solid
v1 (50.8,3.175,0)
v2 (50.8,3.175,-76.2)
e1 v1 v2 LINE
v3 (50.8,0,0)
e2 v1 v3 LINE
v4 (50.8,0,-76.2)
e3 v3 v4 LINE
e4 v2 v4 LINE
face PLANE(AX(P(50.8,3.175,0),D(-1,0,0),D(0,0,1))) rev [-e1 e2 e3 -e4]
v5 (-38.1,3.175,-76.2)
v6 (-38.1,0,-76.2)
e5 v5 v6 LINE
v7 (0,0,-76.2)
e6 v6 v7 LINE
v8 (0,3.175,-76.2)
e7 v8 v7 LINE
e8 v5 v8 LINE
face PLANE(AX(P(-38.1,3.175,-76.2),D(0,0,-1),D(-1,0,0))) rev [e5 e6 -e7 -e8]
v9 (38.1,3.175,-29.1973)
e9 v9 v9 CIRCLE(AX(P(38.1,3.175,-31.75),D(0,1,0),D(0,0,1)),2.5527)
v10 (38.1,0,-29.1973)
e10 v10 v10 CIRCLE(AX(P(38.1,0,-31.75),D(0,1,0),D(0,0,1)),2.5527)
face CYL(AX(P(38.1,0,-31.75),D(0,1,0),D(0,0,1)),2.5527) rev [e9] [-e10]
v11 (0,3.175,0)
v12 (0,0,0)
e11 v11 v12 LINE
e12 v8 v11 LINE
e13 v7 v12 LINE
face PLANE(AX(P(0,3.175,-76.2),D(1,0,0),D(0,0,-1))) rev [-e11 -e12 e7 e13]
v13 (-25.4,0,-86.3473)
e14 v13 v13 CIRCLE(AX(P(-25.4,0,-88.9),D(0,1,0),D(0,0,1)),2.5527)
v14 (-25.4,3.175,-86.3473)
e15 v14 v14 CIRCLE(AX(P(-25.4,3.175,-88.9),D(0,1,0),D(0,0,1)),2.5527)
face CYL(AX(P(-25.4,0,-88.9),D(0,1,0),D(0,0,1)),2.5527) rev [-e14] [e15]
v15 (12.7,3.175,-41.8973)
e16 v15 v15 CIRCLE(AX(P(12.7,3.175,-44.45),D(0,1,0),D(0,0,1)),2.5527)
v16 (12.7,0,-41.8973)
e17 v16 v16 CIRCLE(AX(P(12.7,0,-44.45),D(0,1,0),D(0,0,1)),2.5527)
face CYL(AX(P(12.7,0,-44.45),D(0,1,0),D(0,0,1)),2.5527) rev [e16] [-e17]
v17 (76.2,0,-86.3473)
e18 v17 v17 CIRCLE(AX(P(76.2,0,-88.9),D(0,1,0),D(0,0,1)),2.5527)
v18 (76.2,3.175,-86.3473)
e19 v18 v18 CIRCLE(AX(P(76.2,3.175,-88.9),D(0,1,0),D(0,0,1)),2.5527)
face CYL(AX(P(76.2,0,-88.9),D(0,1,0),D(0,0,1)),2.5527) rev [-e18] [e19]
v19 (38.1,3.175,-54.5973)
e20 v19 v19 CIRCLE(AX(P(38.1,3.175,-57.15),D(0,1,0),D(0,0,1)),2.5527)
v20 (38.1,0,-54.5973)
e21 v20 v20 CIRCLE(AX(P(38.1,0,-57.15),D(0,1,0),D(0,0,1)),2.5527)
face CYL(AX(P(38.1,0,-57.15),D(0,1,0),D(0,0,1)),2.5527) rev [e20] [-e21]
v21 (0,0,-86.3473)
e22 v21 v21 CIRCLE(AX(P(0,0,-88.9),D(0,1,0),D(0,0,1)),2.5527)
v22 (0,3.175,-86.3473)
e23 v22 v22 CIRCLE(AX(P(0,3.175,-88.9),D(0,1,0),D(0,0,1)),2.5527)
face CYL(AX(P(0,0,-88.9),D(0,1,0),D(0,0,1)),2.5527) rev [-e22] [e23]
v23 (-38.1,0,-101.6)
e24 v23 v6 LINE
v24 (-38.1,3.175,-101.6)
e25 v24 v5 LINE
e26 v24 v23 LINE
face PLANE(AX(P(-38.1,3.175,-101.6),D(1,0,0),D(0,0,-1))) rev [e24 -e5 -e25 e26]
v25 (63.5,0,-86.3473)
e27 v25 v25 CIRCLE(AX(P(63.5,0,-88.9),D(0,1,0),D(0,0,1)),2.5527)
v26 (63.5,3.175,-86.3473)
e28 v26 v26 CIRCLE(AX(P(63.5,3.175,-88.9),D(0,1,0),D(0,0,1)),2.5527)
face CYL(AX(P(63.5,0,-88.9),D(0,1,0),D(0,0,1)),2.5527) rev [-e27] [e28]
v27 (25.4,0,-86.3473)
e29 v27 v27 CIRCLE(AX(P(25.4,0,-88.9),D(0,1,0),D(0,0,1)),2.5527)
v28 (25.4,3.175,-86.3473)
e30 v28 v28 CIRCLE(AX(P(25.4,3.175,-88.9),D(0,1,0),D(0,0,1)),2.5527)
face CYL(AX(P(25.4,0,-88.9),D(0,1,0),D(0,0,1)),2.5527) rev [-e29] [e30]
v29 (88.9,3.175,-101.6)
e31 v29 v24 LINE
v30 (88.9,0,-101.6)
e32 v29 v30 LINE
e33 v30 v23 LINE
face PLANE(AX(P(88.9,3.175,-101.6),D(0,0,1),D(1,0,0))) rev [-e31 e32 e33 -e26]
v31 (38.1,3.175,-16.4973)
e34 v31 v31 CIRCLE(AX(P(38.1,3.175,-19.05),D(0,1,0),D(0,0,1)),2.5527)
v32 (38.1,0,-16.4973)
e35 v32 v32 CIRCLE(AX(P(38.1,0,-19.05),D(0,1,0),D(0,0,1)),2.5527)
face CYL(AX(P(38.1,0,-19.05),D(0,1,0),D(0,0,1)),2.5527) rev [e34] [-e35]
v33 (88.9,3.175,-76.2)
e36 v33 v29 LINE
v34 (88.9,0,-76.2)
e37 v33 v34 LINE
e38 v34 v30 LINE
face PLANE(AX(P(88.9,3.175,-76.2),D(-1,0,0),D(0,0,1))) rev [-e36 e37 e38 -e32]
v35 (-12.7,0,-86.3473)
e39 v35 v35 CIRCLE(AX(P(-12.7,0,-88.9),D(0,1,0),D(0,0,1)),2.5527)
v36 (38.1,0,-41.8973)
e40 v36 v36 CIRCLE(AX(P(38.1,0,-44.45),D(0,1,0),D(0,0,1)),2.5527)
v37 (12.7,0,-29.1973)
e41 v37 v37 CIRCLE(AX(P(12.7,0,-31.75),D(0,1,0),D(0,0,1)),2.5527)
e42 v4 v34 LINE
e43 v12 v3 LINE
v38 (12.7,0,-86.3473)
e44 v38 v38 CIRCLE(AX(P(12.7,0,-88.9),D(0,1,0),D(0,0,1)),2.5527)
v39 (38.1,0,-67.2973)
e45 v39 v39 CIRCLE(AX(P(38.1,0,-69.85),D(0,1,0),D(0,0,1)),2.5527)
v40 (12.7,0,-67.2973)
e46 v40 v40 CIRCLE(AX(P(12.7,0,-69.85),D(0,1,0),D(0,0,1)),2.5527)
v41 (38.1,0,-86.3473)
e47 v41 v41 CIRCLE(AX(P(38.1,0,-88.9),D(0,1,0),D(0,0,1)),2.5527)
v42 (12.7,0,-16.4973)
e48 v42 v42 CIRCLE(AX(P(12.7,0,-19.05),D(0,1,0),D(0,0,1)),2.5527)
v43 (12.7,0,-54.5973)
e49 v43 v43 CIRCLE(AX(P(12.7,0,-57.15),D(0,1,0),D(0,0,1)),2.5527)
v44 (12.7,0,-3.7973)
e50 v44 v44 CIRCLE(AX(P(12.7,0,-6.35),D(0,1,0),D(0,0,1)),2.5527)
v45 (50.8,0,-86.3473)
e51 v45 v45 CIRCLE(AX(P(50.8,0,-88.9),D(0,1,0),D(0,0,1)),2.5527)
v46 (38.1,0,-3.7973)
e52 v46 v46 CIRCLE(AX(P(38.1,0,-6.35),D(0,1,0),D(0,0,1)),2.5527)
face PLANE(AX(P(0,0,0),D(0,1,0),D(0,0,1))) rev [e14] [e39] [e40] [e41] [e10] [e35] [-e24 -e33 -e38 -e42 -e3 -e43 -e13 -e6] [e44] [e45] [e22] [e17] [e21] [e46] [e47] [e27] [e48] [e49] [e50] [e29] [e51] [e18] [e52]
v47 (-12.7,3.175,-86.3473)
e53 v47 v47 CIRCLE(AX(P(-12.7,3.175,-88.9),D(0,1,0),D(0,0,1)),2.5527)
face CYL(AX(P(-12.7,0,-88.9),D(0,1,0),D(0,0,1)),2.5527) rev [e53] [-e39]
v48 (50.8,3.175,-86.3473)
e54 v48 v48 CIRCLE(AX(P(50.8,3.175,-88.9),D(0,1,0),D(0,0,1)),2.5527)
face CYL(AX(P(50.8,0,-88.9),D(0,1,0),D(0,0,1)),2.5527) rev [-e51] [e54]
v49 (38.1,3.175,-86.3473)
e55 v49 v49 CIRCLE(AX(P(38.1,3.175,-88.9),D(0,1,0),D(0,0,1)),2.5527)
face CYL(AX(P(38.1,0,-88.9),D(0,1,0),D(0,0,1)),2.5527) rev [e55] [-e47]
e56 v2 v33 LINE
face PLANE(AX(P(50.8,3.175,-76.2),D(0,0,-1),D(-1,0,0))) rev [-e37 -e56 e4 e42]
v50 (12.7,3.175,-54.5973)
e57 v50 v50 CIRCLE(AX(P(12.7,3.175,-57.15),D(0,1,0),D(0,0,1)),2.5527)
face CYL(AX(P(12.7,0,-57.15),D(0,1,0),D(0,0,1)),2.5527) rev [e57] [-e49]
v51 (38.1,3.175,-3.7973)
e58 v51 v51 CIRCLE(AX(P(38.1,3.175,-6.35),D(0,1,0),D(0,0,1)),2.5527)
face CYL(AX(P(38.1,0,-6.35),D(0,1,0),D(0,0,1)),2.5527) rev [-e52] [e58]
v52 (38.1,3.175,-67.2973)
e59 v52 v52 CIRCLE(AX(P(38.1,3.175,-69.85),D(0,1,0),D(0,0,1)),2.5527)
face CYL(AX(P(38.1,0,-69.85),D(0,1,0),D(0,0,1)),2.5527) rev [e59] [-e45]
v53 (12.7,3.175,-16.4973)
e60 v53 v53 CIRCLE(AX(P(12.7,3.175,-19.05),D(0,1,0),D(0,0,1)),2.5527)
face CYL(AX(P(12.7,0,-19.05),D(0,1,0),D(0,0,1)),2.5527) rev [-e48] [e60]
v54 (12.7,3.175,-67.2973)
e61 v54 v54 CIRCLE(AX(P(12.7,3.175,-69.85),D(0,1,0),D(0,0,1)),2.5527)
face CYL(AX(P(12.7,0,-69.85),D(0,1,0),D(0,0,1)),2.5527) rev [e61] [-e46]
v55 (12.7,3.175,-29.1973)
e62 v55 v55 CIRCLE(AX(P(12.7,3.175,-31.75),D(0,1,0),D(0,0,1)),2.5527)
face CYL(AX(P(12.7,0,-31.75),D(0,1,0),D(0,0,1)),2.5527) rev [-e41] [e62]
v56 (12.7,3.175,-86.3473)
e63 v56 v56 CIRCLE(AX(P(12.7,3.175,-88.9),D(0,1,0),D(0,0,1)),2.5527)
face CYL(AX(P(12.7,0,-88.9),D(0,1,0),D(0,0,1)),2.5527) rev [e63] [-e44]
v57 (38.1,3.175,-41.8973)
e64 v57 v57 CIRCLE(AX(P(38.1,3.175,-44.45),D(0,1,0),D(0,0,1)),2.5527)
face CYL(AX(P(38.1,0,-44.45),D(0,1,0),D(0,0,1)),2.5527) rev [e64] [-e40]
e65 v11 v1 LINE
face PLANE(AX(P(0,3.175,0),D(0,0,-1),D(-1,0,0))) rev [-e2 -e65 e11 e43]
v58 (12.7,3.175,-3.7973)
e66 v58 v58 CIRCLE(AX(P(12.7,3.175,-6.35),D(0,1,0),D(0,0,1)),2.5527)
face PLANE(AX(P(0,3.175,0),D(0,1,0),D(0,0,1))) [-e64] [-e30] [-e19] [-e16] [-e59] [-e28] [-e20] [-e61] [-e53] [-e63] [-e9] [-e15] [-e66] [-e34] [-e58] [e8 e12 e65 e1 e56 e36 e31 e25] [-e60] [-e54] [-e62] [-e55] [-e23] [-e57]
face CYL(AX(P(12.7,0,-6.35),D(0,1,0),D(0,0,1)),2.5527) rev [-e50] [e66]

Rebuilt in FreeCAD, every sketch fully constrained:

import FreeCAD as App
import Part
import Sketcher

V = App.Vector
Q = App.Units.Quantity


def add_polygon(sketch, points):
    """Adds a closed chain of lines whose ends are joined by coincident constraints."""
    first, n = sketch.GeometryCount, len(points)
    for a, b in zip(points, points[1:] + points[:1]):
        sketch.addGeometry(Part.LineSegment(App.Vector(*a, 0), App.Vector(*b, 0)), False)
    for i in range(n):
        sketch.addConstraint(Sketcher.Constraint("Coincident", first + i, 2, first + (i + 1) % n, 1))

doc = App.newDocument("Part")
body = doc.addObject("PartDesign::Body", "Body")

# Sketch on XZ plane
sketch1 = doc.addObject("Sketcher::SketchObject", "Sketch")
body.addObject(sketch1)
sketch1.AttachmentSupport = (doc.XZ_Plane, [""])
sketch1.MapMode = "FlatFace"
add_polygon(sketch1, [(0, 0), (50.8, 0), (50.8, -76.2), (88.9, -76.2), (88.9, -101.6), (-38.1, -101.6), (-38.1, -76.2), (0, -76.2)])  # lines 0-7
sketch1.addConstraint([
    Sketcher.Constraint("Horizontal", 0),
    Sketcher.Constraint("Vertical", 1),
    Sketcher.Constraint("Horizontal", 2),
    Sketcher.Constraint("Vertical", 3),
    Sketcher.Constraint("Horizontal", 4),
    Sketcher.Constraint("Vertical", 5),
    Sketcher.Constraint("Horizontal", 6),
    Sketcher.Constraint("Vertical", 7),
    Sketcher.Constraint("Coincident", 7, 2, -1, 1),
    Sketcher.Constraint("Horizontal", 2, 2, 5, 2),
    Sketcher.Constraint("Equal", 2, 6),
    Sketcher.Constraint("DistanceX", 0, 1, 0, 2, Q("2 in")),
    Sketcher.Constraint("DistanceX", 4, 2, 4, 1, Q("5 in")),
    Sketcher.Constraint("DistanceY", 1, 2, 1, 1, Q("3 in")),
    Sketcher.Constraint("DistanceY", 3, 2, 3, 1, Q("1 in")),
])
pad1 = doc.addObject("PartDesign::Pad", "Pad")
body.addObject(pad1)
pad1.Profile = sketch1
pad1.Length = Q("0.125 in")
pad1.Reversed = True

# Sketch on XZ plane
sketch2 = doc.addObject("Sketcher::SketchObject", "Sketch001")
body.addObject(sketch2)
sketch2.AttachmentSupport = (doc.XZ_Plane, [""])
sketch2.MapMode = "FlatFace"
sketch2.AttachmentOffset = App.Placement(V(0, 0, -0.125 * 25.4), App.Rotation())
sketch2.addGeometry([
    Part.Circle(V(38.1, -6.35, 0), V(0, 0, 1), 2.5527),  # 0
    Part.Circle(V(12.7, -6.35, 0), V(0, 0, 1), 2.5527),  # 1
    Part.Circle(V(38.1, -19.05, 0), V(0, 0, 1), 2.5527),  # 2
    Part.Circle(V(12.7, -19.05, 0), V(0, 0, 1), 2.5527),  # 3
    Part.Circle(V(38.1, -31.75, 0), V(0, 0, 1), 2.5527),  # 4
    Part.Circle(V(12.7, -31.75, 0), V(0, 0, 1), 2.5527),  # 5
    Part.Circle(V(38.1, -44.45, 0), V(0, 0, 1), 2.5527),  # 6
    Part.Circle(V(12.7, -44.45, 0), V(0, 0, 1), 2.5527),  # 7
    Part.Circle(V(38.1, -57.15, 0), V(0, 0, 1), 2.5527),  # 8
    Part.Circle(V(12.7, -57.15, 0), V(0, 0, 1), 2.5527),  # 9
    Part.Circle(V(38.1, -69.85, 0), V(0, 0, 1), 2.5527),  # 10
    Part.Circle(V(12.7, -69.85, 0), V(0, 0, 1), 2.5527),  # 11
], False)
sketch2.addConstraint([
    Sketcher.Constraint("Equal", 0, 1),
    Sketcher.Constraint("Equal", 1, 2),
    Sketcher.Constraint("Equal", 2, 3),
    Sketcher.Constraint("Equal", 3, 4),
    Sketcher.Constraint("Equal", 4, 5),
    Sketcher.Constraint("Equal", 5, 6),
    Sketcher.Constraint("Equal", 6, 7),
    Sketcher.Constraint("Equal", 7, 8),
    Sketcher.Constraint("Equal", 8, 9),
    Sketcher.Constraint("Equal", 9, 10),
    Sketcher.Constraint("Equal", 10, 11),
    Sketcher.Constraint("Horizontal", 0, 3, 1, 3),
    Sketcher.Constraint("Horizontal", 2, 3, 3, 3),
    Sketcher.Constraint("Horizontal", 4, 3, 5, 3),
    Sketcher.Constraint("Horizontal", 6, 3, 7, 3),
    Sketcher.Constraint("Horizontal", 8, 3, 9, 3),
    Sketcher.Constraint("Horizontal", 10, 3, 11, 3),
    Sketcher.Constraint("Vertical", 0, 3, 2, 3),
    Sketcher.Constraint("Vertical", 1, 3, 3, 3),
    Sketcher.Constraint("Vertical", 2, 3, 4, 3),
    Sketcher.Constraint("Vertical", 3, 3, 5, 3),
    Sketcher.Constraint("Vertical", 4, 3, 6, 3),
    Sketcher.Constraint("Vertical", 5, 3, 7, 3),
    Sketcher.Constraint("Vertical", 6, 3, 8, 3),
    Sketcher.Constraint("Vertical", 7, 3, 9, 3),
    Sketcher.Constraint("Vertical", 8, 3, 10, 3),
    Sketcher.Constraint("Vertical", 9, 3, 11, 3),
    Sketcher.Constraint("Diameter", 0, Q("0.201 in")),
    Sketcher.Constraint("DistanceX", 1, 3, 0, 3, Q("1 in")),
    Sketcher.Constraint("DistanceY", 4, 3, 0, 3, Q("1 in")),
    Sketcher.Constraint("DistanceY", 6, 3, 2, 3, Q("1 in")),
    Sketcher.Constraint("DistanceY", 8, 3, 4, 3, Q("1 in")),
    Sketcher.Constraint("DistanceY", 10, 3, 6, 3, Q("1 in")),
    Sketcher.Constraint("DistanceX", -1, 1, 0, 3, Q("1.5 in")),
    Sketcher.Constraint("DistanceY", 2, 3, 0, 3, Q("0.5 in")),
    Sketcher.Constraint("DistanceY", 0, 3, -1, 1, Q("0.25 in")),
])
pocket1 = doc.addObject("PartDesign::Pocket", "Pocket")
body.addObject(pocket1)
pocket1.Profile = sketch2
pocket1.Type = "ThroughAll"
pocket1.Reversed = True

# Sketch on XZ plane
sketch3 = doc.addObject("Sketcher::SketchObject", "Sketch002")
body.addObject(sketch3)
sketch3.AttachmentSupport = (doc.XZ_Plane, [""])
sketch3.MapMode = "FlatFace"
sketch3.AttachmentOffset = App.Placement(V(0, 0, -0.125 * 25.4), App.Rotation())
sketch3.addGeometry([
    Part.Circle(V(76.2, -88.9, 0), V(0, 0, 1), 2.5527),  # 0
    Part.Circle(V(63.5, -88.9, 0), V(0, 0, 1), 2.5527),  # 1
    Part.Circle(V(50.8, -88.9, 0), V(0, 0, 1), 2.5527),  # 2
    Part.Circle(V(38.1, -88.9, 0), V(0, 0, 1), 2.5527),  # 3
    Part.Circle(V(25.4, -88.9, 0), V(0, 0, 1), 2.5527),  # 4
    Part.Circle(V(12.7, -88.9, 0), V(0, 0, 1), 2.5527),  # 5
    Part.Circle(V(0, -88.9, 0), V(0, 0, 1), 2.5527),  # 6
    Part.Circle(V(-12.7, -88.9, 0), V(0, 0, 1), 2.5527),  # 7
    Part.Circle(V(-25.4, -88.9, 0), V(0, 0, 1), 2.5527),  # 8
], False)
sketch3.addConstraint([
    Sketcher.Constraint("Equal", 0, 1),
    Sketcher.Constraint("Equal", 1, 2),
    Sketcher.Constraint("Equal", 2, 3),
    Sketcher.Constraint("Equal", 3, 4),
    Sketcher.Constraint("Equal", 4, 5),
    Sketcher.Constraint("Equal", 5, 6),
    Sketcher.Constraint("Equal", 6, 7),
    Sketcher.Constraint("Equal", 7, 8),
    Sketcher.Constraint("Symmetric", 5, 3, 7, 3, -2),
    Sketcher.Constraint("Symmetric", 4, 3, 8, 3, -2),
    Sketcher.Constraint("PointOnObject", 6, 3, -2),
    Sketcher.Constraint("Horizontal", 0, 3, 1, 3),
    Sketcher.Constraint("Horizontal", 1, 3, 2, 3),
    Sketcher.Constraint("Horizontal", 2, 3, 3, 3),
    Sketcher.Constraint("Horizontal", 3, 3, 4, 3),
    Sketcher.Constraint("Horizontal", 4, 3, 5, 3),
    Sketcher.Constraint("Horizontal", 5, 3, 6, 3),
    Sketcher.Constraint("Diameter", 0, Q("0.201 in")),
    Sketcher.Constraint("DistanceX", -1, 1, 0, 3, Q("3 in")),
    Sketcher.Constraint("DistanceX", -1, 1, 2, 3, Q("2 in")),
    Sketcher.Constraint("DistanceX", -1, 1, 4, 3, Q("1 in")),
    Sketcher.Constraint("DistanceX", 3, 3, 1, 3, Q("1 in")),
    Sketcher.Constraint("DistanceX", 5, 3, 3, 3, Q("1 in")),
    Sketcher.Constraint("DistanceX", 7, 3, 5, 3, Q("1 in")),
    Sketcher.Constraint("DistanceY", 0, 3, -1, 1, Q("3.5 in")),
])
pocket2 = doc.addObject("PartDesign::Pocket", "Pocket001")
body.addObject(pocket2)
pocket2.Profile = sketch3
pocket2.Type = "ThroughAll"
pocket2.Reversed = True

doc.recompute()
